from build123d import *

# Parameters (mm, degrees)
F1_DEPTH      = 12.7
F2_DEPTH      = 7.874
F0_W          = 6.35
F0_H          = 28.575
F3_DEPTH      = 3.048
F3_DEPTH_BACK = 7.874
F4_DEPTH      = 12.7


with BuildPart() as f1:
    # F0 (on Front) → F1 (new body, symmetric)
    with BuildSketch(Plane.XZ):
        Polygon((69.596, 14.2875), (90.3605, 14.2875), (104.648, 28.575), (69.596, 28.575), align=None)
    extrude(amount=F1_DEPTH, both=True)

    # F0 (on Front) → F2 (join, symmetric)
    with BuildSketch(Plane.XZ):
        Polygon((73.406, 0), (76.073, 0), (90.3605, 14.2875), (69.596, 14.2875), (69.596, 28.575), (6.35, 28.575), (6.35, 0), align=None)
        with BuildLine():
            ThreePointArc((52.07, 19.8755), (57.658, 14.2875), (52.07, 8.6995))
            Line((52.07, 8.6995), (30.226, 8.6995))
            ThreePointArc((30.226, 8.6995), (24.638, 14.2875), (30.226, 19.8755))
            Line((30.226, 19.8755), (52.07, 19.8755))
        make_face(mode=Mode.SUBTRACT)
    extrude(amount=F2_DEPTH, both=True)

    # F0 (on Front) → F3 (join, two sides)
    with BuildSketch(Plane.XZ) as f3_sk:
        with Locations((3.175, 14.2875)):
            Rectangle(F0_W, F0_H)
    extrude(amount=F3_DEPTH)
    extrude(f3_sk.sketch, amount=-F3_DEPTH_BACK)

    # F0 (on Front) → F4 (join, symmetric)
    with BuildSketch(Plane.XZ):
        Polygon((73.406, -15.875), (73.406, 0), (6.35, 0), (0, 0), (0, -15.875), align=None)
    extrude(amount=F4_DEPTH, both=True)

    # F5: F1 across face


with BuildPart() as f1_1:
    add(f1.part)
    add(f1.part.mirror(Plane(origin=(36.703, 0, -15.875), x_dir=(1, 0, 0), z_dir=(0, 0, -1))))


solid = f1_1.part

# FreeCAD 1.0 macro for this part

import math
import FreeCAD as App
import Part
import Sketcher
from FreeCAD import Vector
Q = App.Units.Quantity


def add_polygon(sketch, points):
    """Adds a closed chain of lines whose ends are joined by coincident constraints."""
    first, n = sketch.GeometryCount, len(points)
    for a, b in zip(points, points[1:] + points[:1]):
        sketch.addGeometry(Part.LineSegment(App.Vector(*a, 0), App.Vector(*b, 0)), False)
    for i in range(n):
        sketch.addConstraint(Sketcher.Constraint("Coincident", first + i, 2, first + (i + 1) % n, 1))

doc = App.newDocument("Part")
params = doc.addObject("Spreadsheet::Sheet", "Params")
for row, (alias, value) in enumerate([
    ("sketch1_width", "1.38 in"),
    ("sketch1_height", "0.5625 in"),
    ("pad1_length", "1 in"),
    ("sketch2_radius", "0.22 in"),
    ("sketch2_width", "2.49 in"),
    ("sketch2_width2", "0.86 in"),
    ("sketch2_width3", "2.745 in"),
    ("sketch2_height", "0.5625 in"),
    ("pad2_length", "0.62 in"),
    ("sketch3_width", "0.25 in"),
    ("sketch3_height", "1.125 in"),
    ("pad3_length", "0.12 in"),
    ("pad3_length2", "0.31 in"),
    ("sketch4_width", "2.89 in"),
    ("sketch4_height", "0.625 in"),
    ("pad4_length", "1 in"),
], start=1):
    params.set(f"A{row}", alias)
    params.set(f"B{row}", "=" + value)
    params.setAlias(f"B{row}", alias)

body = doc.addObject("PartDesign::Body", "Body")

sketch1 = doc.addObject("Sketcher::SketchObject", "Sketch")
body.addObject(sketch1)
sketch1.AttachmentSupport = (doc.XZ_Plane, [""])
sketch1.MapMode = "FlatFace"
add_polygon(sketch1, [(70, 14), (90, 14), (105, 29), (70, 29)])
sketch1.addConstraint([
    Sketcher.Constraint("Horizontal", 0),
    Sketcher.Constraint("Horizontal", 2),
    Sketcher.Constraint("Vertical", 3),
    Sketcher.Constraint("Angle", 1, Q("45 deg")),
    Sketcher.Constraint("DistanceX", 2, 2, 2, 1, Q("1.38 in")),
    Sketcher.Constraint("DistanceY", 3, 2, 3, 1, Q("0.5625 in")),
    Sketcher.Constraint("DistanceX", -1, 1, 1, 2, Q("4.12 in")),
    Sketcher.Constraint("DistanceY", -1, 1, 0, 2, Q("0.5625 in")),
])
sketch1.setExpression("Constraints[8]", "Params.sketch1_width")
sketch1.setExpression("Constraints[9]", "Params.sketch1_height")
pad1 = doc.addObject("PartDesign::Pad", "Pad")
body.addObject(pad1)
pad1.Profile = sketch1
pad1.setExpression("Length", "Params.pad1_length")
pad1.Midplane = True

sketch2 = doc.addObject("Sketcher::SketchObject", "Sketch001")
body.addObject(sketch2)
sketch2.AttachmentSupport = (doc.XZ_Plane, [""])
sketch2.MapMode = "FlatFace"
add_polygon(sketch2, [(76, 0), (90, 14), (70, 14), (70, 29), (6, 29), (6, 0)])
sketch2.addGeometry(Part.LineSegment(Vector(30, 20, 0), Vector(52, 20, 0)), False)
sketch2.addGeometry(Part.ArcOfCircle(Part.Circle(Vector(52, 14, 0), Vector(0, 0, 1), 6), math.radians(-90), math.radians(90)), False)
sketch2.addGeometry(Part.LineSegment(Vector(52, 9, 0), Vector(30, 9, 0)), False)
sketch2.addGeometry(Part.ArcOfCircle(Part.Circle(Vector(30, 14, 0), Vector(0, 0, 1), 6), math.radians(90), math.radians(270)), False)
sketch2.addConstraint([
    Sketcher.Constraint("Tangent", 6, 2, 7, 2),
    Sketcher.Constraint("Tangent", 7, 1, 8, 1),
    Sketcher.Constraint("Tangent", 8, 2, 9, 2),
    Sketcher.Constraint("Tangent", 9, 1, 6, 1),
    Sketcher.Constraint("Horizontal", 1),
    Sketcher.Constraint("Vertical", 2),
    Sketcher.Constraint("Horizontal", 3),
    Sketcher.Constraint("Vertical", 4),
    Sketcher.Constraint("Horizontal", 5),
    Sketcher.Constraint("Horizontal", 6),
    Sketcher.Constraint("Horizontal", 8),
    Sketcher.Constraint("PointOnObject", 4, 2, -1),
    Sketcher.Constraint("Horizontal", 9, 3, 0, 2),
    Sketcher.Constraint("Radius", 7, Q("0.22 in")),
    Sketcher.Constraint("Angle", 0, Q("45 deg")),
    Sketcher.Constraint("DistanceX", 3, 2, 3, 1, Q("2.49 in")),
    Sketcher.Constraint("DistanceX", 6, 1, 6, 2, Q("0.86 in")),
    Sketcher.Constraint("DistanceX", 3, 2, 7, 3, Q("1.8 in")),
    Sketcher.Constraint("DistanceX", 5, 1, 5, 2, Q("2.745 in")),
    Sketcher.Constraint("DistanceY", 2, 1, 2, 2, Q("0.5625 in")),
    Sketcher.Constraint("DistanceY", 4, 2, 4, 1, Q("1.125 in")),
    Sketcher.Constraint("DistanceX", -1, 1, 7, 3, Q("2.05 in")),
])
sketch2.setExpression("Constraints[19]", "Params.sketch2_radius")
sketch2.setExpression("Constraints[21]", "Params.sketch2_width")
sketch2.setExpression("Constraints[22]", "Params.sketch2_width2")
sketch2.setExpression("Constraints[24]", "Params.sketch2_width3")
sketch2.setExpression("Constraints[25]", "Params.sketch2_height")
pad2 = doc.addObject("PartDesign::Pad", "Pad001")
body.addObject(pad2)
pad2.Profile = sketch2
pad2.setExpression("Length", "Params.pad2_length")
pad2.Midplane = True

sketch3 = doc.addObject("Sketcher::SketchObject", "Sketch002")
body.addObject(sketch3)
sketch3.AttachmentSupport = (doc.XZ_Plane, [""])
sketch3.MapMode = "FlatFace"
add_polygon(sketch3, [(0, 29), (0, 0), (6, 0), (6, 29)])
sketch3.addConstraint([
    Sketcher.Constraint("Vertical", 0),
    Sketcher.Constraint("Horizontal", 1),
    Sketcher.Constraint("Vertical", 2),
    Sketcher.Constraint("Horizontal", 3),
    Sketcher.Constraint("Coincident", 0, 2, -1, 1),
    Sketcher.Constraint("DistanceX", 1, 1, 1, 2, Q("0.25 in")),
    Sketcher.Constraint("DistanceY", 0, 2, 0, 1, Q("1.125 in")),
])
sketch3.setExpression("Constraints[9]", "Params.sketch3_width")
sketch3.setExpression("Constraints[10]", "Params.sketch3_height")
pad3 = doc.addObject("PartDesign::Pad", "Pad002")
body.addObject(pad3)
pad3.Profile = sketch3
pad3.Type = "TwoLengths"
pad3.setExpression("Length", "Params.pad3_length")
pad3.setExpression("Length2", "Params.pad3_length2")

sketch4 = doc.addObject("Sketcher::SketchObject", "Sketch003")
body.addObject(sketch4)
sketch4.AttachmentSupport = (doc.XZ_Plane, [""])
sketch4.MapMode = "FlatFace"
add_polygon(sketch4, [(73, -16), (73, 0), (0, 0), (0, -16)])
sketch4.addConstraint([
    Sketcher.Constraint("Vertical", 0),
    Sketcher.Constraint("Horizontal", 1),
    Sketcher.Constraint("Vertical", 2),
    Sketcher.Constraint("Horizontal", 3),
    Sketcher.Constraint("Coincident", 1, 2, -1, 1),
    Sketcher.Constraint("DistanceX", 1, 2, 1, 1, Q("2.89 in")),
    Sketcher.Constraint("DistanceY", 0, 1, 0, 2, Q("0.625 in")),
])
sketch4.setExpression("Constraints[9]", "Params.sketch4_width")
sketch4.setExpression("Constraints[10]", "Params.sketch4_height")
pad4 = doc.addObject("PartDesign::Pad", "Pad003")
body.addObject(pad4)
pad4.Profile = sketch4
pad4.setExpression("Length", "Params.pad4_length")
pad4.Midplane = True
body2 = doc.addObject("PartDesign::Body", "Body001")
doc.recompute()

body2.BaseFeature = body
doc.recompute()

mirroring = doc.addObject("Part::Mirroring", "Mirroring")
mirroring.Source = body
mirroring.Base = Vector(36.703, 0, -15.875)
mirroring.Normal = Vector(0, 0, -1)
body3 = doc.addObject("PartDesign::Body", "Body002")
body3.BaseFeature = mirroring
boolean = doc.addObject("PartDesign::Boolean", "Boolean")
body2.addObject(boolean)
boolean.Type = "Fuse"
boolean.addObjects([body3])
doc.recompute()
mirroring.Visibility = False

doc.recompute()
